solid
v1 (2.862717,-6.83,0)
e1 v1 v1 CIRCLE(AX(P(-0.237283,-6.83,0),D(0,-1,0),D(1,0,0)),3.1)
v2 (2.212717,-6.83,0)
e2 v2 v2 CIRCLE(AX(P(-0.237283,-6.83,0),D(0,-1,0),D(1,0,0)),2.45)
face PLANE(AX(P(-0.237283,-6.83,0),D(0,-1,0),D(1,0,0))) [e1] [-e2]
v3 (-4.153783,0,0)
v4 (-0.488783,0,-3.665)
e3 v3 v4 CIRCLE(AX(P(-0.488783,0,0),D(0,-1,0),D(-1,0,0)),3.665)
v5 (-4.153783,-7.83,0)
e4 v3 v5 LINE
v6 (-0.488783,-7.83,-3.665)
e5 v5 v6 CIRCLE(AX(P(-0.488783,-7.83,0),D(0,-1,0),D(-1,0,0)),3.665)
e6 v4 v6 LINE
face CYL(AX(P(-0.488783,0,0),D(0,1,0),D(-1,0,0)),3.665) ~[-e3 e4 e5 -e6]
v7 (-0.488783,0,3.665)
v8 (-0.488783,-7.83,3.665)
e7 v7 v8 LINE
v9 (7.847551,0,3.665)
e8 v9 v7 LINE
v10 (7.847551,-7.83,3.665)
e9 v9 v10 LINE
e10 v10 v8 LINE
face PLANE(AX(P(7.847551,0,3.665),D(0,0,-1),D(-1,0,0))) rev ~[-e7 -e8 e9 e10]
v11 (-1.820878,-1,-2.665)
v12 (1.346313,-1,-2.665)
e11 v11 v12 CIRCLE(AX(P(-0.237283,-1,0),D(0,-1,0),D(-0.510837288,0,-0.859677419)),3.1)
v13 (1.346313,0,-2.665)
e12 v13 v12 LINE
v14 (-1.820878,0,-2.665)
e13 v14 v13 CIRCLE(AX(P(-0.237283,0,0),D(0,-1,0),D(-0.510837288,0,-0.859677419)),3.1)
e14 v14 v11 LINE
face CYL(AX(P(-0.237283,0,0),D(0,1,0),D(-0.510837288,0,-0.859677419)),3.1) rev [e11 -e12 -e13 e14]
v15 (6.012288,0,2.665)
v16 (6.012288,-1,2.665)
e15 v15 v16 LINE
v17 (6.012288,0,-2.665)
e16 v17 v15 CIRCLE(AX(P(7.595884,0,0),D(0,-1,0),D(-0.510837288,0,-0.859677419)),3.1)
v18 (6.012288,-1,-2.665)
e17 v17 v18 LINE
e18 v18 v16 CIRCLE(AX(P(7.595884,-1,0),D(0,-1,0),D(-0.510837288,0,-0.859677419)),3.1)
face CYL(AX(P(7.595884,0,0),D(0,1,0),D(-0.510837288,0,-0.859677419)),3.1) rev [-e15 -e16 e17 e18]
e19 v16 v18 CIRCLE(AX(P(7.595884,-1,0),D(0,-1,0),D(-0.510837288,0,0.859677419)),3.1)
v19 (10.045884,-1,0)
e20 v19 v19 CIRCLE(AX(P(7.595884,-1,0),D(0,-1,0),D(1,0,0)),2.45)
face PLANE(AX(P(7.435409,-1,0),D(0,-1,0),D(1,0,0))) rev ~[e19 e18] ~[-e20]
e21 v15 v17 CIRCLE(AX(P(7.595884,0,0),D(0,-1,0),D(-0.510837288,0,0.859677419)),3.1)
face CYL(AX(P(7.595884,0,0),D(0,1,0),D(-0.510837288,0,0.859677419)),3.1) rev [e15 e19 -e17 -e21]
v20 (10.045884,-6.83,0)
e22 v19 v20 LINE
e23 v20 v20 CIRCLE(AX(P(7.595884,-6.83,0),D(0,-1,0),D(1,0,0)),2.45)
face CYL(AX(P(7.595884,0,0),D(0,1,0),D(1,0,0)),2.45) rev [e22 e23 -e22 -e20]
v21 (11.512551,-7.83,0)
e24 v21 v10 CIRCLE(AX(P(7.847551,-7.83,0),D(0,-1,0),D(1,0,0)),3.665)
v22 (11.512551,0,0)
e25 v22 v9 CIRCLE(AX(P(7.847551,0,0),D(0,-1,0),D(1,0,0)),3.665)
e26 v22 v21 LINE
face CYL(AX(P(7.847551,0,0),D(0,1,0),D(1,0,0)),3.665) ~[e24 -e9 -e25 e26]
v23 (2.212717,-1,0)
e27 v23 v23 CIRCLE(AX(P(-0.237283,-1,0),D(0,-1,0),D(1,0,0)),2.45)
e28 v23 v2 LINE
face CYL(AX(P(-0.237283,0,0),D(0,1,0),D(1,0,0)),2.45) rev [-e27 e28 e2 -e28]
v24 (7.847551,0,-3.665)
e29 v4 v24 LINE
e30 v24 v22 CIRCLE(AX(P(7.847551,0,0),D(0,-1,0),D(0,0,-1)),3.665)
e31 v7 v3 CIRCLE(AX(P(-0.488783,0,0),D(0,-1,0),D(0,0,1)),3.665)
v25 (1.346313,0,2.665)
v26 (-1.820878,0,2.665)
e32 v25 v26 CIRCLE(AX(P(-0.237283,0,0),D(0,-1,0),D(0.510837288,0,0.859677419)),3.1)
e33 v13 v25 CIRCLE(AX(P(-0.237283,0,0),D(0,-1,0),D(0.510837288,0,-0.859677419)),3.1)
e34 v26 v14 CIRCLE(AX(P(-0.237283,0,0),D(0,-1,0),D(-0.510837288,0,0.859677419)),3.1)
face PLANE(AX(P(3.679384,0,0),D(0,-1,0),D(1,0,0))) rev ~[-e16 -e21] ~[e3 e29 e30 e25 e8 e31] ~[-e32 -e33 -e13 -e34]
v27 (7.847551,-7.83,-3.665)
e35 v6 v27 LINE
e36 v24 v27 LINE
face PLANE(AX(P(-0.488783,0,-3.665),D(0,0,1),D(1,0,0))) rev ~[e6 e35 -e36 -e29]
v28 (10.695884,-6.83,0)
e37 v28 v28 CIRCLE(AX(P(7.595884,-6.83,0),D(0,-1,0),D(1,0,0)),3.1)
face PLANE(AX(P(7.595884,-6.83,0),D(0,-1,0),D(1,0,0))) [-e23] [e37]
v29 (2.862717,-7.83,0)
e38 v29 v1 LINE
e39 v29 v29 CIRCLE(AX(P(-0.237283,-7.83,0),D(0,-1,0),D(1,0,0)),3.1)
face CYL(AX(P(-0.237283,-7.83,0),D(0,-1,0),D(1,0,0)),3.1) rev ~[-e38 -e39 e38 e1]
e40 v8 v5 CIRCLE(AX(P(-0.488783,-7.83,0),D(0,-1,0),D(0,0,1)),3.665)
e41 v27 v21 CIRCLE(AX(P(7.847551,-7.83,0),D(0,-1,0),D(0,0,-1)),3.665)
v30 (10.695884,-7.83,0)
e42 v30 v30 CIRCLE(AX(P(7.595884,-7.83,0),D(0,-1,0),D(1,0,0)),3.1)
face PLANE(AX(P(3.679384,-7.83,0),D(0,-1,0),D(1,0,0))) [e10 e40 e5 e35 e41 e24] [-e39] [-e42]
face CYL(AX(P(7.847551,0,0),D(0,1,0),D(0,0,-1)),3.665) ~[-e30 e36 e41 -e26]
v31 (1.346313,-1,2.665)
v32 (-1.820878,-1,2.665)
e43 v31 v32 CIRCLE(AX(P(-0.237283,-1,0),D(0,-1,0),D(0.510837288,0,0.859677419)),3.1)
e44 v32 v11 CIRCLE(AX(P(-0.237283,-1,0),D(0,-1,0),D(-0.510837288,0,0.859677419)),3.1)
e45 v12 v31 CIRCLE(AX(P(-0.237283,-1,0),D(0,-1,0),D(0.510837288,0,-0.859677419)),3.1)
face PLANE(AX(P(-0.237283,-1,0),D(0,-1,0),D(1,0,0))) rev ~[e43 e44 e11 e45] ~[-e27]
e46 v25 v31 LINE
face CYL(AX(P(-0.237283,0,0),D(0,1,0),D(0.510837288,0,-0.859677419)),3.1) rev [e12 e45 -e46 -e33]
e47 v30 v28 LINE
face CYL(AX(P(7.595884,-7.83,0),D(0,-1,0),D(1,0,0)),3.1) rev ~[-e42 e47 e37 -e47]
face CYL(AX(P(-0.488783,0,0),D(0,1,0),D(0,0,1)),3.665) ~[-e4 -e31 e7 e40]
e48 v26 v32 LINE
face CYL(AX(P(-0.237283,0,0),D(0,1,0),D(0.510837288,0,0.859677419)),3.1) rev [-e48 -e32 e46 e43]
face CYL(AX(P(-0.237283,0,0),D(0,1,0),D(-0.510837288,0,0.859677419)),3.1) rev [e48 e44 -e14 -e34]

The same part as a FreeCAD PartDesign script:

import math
import FreeCAD as App
import Part
import Sketcher
from FreeCAD import Vector

doc = App.newDocument("Part")
params = doc.addObject("Spreadsheet::Sheet", "Params")
for row, (alias, value) in enumerate([
    ("sketch1_diameter", "4.9 mm"),
    ("pad1_length", "7.83 mm"),
    ("sketch2_diameter", "4.9 mm"),
    ("sketch2_radius", "3.1 mm"),
    ("pocket1_length", "1 mm"),
    ("sketch3_diameter", "6.2 mm"),
    ("sketch3_diameter2", "4.9 mm"),
    ("pocket2_length", "1 mm"),
], start=1):
    params.set(f"A{row}", alias)
    params.set(f"B{row}", "=" + value)
    params.setAlias(f"B{row}", alias)

body = doc.addObject("PartDesign::Body", "Body")

# Sketch on XZ plane
sketch1 = body.newObject("Sketcher::SketchObject", "Sketch")
sketch1.AttachmentSupport = (doc.getObject("XZ_Plane"), [""])
sketch1.MapMode = "FlatFace"
sketch1.addGeometry([
    Part.ArcOfCircle(Part.Circle(Vector(-0.5, 0, 0), Vector(0, 0, 1), 3.7), math.radians(180), math.radians(270)),  # 0
    Part.LineSegment(Vector(-0.5, -3.7, 0), Vector(7.8, -3.7, 0)),  # 1
    Part.ArcOfCircle(Part.Circle(Vector(7.8, 0, 0), Vector(0, 0, 1), 3.7), math.radians(-90), math.radians(0)),  # 2
    Part.ArcOfCircle(Part.Circle(Vector(7.8, 0, 0), Vector(0, 0, 1), 3.7), math.radians(0), math.radians(90)),  # 3
    Part.LineSegment(Vector(7.8, 3.7, 0), Vector(-0.5, 3.7, 0)),  # 4
    Part.ArcOfCircle(Part.Circle(Vector(-0.5, 0, 0), Vector(0, 0, 1), 3.7), math.radians(90), math.radians(180)),  # 5
    Part.Circle(Vector(-0.2, 0, 0), Vector(0, 0, 1), 2.5),  # 6
    Part.Circle(Vector(7.6, 0, 0), Vector(0, 0, 1), 2.5),  # 7
], False)
sketch1.addConstraint([
    Sketcher.Constraint("Tangent", 0, 2, 1, 1),
    Sketcher.Constraint("Tangent", 1, 2, 2, 1),
    Sketcher.Constraint("Tangent", 2, 2, 3, 1),
    Sketcher.Constraint("Tangent", 3, 2, 4, 1),
    Sketcher.Constraint("Tangent", 4, 2, 5, 1),
    Sketcher.Constraint("Tangent", 5, 2, 0, 1),
    Sketcher.Constraint("Horizontal", 1),
    Sketcher.Constraint("Horizontal", 4),
    Sketcher.Constraint("Equal", 0, 2),
    Sketcher.Constraint("Equal", 2, 3),
    Sketcher.Constraint("Equal", 6, 7),
    Sketcher.Constraint("PointOnObject", 0, 3, -1),
    Sketcher.Constraint("PointOnObject", 6, 3, -1),
    Sketcher.Constraint("PointOnObject", 7, 3, -1),
    Sketcher.Constraint("PointOnObject", 2, 2, -1),
    Sketcher.Constraint("PointOnObject", 5, 2, -1),
    Sketcher.Constraint("Diameter", 6, 4.9),
    Sketcher.Constraint("Radius", 0, 3.665),
    Sketcher.Constraint("DistanceX", 0, 3, 6, 3, 0.2515),
    Sketcher.Constraint("DistanceX", 1, 1, 1, 2, 8.336333),
    Sketcher.Constraint("DistanceX", -1, 1, 2, 3, 7.847551),
    Sketcher.Constraint("DistanceX", -1, 1, 7, 3, 7.595884),
])
sketch1.setExpression("Constraints[16]", "Params.sketch1_diameter")
pad1 = body.newObject("PartDesign::Pad", "Pad")
pad1.Profile = sketch1
pad1.setExpression("Length", "Params.pad1_length")

# Sketch on XZ plane
sketch2 = body.newObject("Sketcher::SketchObject", "Sketch001")
sketch2.AttachmentSupport = (doc.getObject("XZ_Plane"), [""])
sketch2.MapMode = "FlatFace"
sketch2.addGeometry([
    Part.ArcOfCircle(Part.Circle(Vector(-0.2, 0, 0), Vector(0, 0, 1), 3.1), math.radians(59), math.radians(121)),  # 0
    Part.ArcOfCircle(Part.Circle(Vector(-0.2, 0, 0), Vector(0, 0, 1), 3.1), math.radians(121), math.radians(239)),  # 1
    Part.ArcOfCircle(Part.Circle(Vector(-0.2, 0, 0), Vector(0, 0, 1), 3.1), math.radians(-121), math.radians(-59)),  # 2
    Part.ArcOfCircle(Part.Circle(Vector(-0.2, 0, 0), Vector(0, 0, 1), 3.1), math.radians(-59), math.radians(59)),  # 3
    Part.Circle(Vector(-0.2, 0, 0), Vector(0, 0, 1), 2.5),  # 4
    Part.ArcOfCircle(Part.Circle(Vector(7.6, 0, 0), Vector(0, 0, 1), 3.1), math.radians(-121), math.radians(121)),  # 5
    Part.ArcOfCircle(Part.Circle(Vector(7.6, 0, 0), Vector(0, 0, 1), 3.1), math.radians(121), math.radians(239)),  # 6
    Part.Circle(Vector(7.6, 0, 0), Vector(0, 0, 1), 2.5),  # 7
], False)
sketch2.addConstraint([
    Sketcher.Constraint("Tangent", 0, 2, 1, 1),
    Sketcher.Constraint("Tangent", 1, 2, 2, 1),
    Sketcher.Constraint("Tangent", 2, 2, 3, 1),
    Sketcher.Constraint("Tangent", 3, 2, 0, 1),
    Sketcher.Constraint("Tangent", 5, 1, 6, 2),
    Sketcher.Constraint("Coincident", 6, 1, 5, 2),
    Sketcher.Constraint("Coincident", 4, 3, 0, 3),
    Sketcher.Constraint("Coincident", 7, 3, 5, 3),
    Sketcher.Constraint("Equal", 0, 1),
    Sketcher.Constraint("Equal", 3, 5),
    Sketcher.Constraint("Equal", 4, 7),
    Sketcher.Constraint("Symmetric", 0, 2, 1, 2, -1),
    Sketcher.Constraint("Symmetric", 5, 1, 6, 1, -1),
    Sketcher.Constraint("Horizontal", 1, 2, 2, 2),
    Sketcher.Constraint("Horizontal", 0, 2, 3, 2),
    Sketcher.Constraint("Horizontal", 2, 2, 5, 1),
    Sketcher.Constraint("Diameter", 4, 4.9),
    Sketcher.Constraint("Radius", 0, 3.1),
    Sketcher.Constraint("DistanceY", 5, 1, 6, 1, 5.33),
    Sketcher.Constraint("DistanceX", 0, 2, -1, 1, 1.820878),
    Sketcher.Constraint("DistanceX", -1, 1, 5, 1, 6.012288),
])
sketch2.setExpression("Constraints[16]", "Params.sketch2_diameter")
sketch2.setExpression("Constraints[17]", "Params.sketch2_radius")
pocket1 = body.newObject("PartDesign::Pocket", "Pocket")
pocket1.Profile = sketch2
pocket1.setExpression("Length", "Params.pocket1_length")
pocket1.Reversed = True

# Sketch on XZ plane
sketch3 = body.newObject("Sketcher::SketchObject", "Sketch002")
sketch3.AttachmentSupport = (doc.getObject("XZ_Plane"), [""])
sketch3.MapMode = "FlatFace"
sketch3.AttachmentOffset = App.Placement(Vector(0, 0, 7.83), App.Rotation())
sketch3.addGeometry([
    Part.Circle(Vector(-0.2, 0, 0), Vector(0, 0, 1), 3.1),
    Part.Circle(Vector(-0.2, 0, 0), Vector(0, 0, 1), 2.5),
    Part.Circle(Vector(7.6, 0, 0), Vector(0, 0, 1), 3.1),
    Part.Circle(Vector(7.6, 0, 0), Vector(0, 0, 1), 2.5),
], False)
sketch3.addConstraint([
    Sketcher.Constraint("Coincident", 1, 3, 0, 3),
    Sketcher.Constraint("Coincident", 3, 3, 2, 3),
    Sketcher.Constraint("Equal", 0, 2),
    Sketcher.Constraint("Equal", 1, 3),
    Sketcher.Constraint("PointOnObject", 0, 3, -1),
    Sketcher.Constraint("PointOnObject", 2, 3, -1),
    Sketcher.Constraint("Diameter", 0, 6.2),
    Sketcher.Constraint("Diameter", 1, 4.9),
    Sketcher.Constraint("DistanceX", 0, 3, -1, 1, 0.237283),
    Sketcher.Constraint("DistanceX", -1, 1, 2, 3, 7.595884),
])
sketch3.setExpression("Constraints[6]", "Params.sketch3_diameter")
sketch3.setExpression("Constraints[7]", "Params.sketch3_diameter2")
pocket2 = body.newObject("PartDesign::Pocket", "Pocket001")
pocket2.Profile = sketch3
pocket2.setExpression("Length", "Params.pocket2_length")

doc.recompute()
